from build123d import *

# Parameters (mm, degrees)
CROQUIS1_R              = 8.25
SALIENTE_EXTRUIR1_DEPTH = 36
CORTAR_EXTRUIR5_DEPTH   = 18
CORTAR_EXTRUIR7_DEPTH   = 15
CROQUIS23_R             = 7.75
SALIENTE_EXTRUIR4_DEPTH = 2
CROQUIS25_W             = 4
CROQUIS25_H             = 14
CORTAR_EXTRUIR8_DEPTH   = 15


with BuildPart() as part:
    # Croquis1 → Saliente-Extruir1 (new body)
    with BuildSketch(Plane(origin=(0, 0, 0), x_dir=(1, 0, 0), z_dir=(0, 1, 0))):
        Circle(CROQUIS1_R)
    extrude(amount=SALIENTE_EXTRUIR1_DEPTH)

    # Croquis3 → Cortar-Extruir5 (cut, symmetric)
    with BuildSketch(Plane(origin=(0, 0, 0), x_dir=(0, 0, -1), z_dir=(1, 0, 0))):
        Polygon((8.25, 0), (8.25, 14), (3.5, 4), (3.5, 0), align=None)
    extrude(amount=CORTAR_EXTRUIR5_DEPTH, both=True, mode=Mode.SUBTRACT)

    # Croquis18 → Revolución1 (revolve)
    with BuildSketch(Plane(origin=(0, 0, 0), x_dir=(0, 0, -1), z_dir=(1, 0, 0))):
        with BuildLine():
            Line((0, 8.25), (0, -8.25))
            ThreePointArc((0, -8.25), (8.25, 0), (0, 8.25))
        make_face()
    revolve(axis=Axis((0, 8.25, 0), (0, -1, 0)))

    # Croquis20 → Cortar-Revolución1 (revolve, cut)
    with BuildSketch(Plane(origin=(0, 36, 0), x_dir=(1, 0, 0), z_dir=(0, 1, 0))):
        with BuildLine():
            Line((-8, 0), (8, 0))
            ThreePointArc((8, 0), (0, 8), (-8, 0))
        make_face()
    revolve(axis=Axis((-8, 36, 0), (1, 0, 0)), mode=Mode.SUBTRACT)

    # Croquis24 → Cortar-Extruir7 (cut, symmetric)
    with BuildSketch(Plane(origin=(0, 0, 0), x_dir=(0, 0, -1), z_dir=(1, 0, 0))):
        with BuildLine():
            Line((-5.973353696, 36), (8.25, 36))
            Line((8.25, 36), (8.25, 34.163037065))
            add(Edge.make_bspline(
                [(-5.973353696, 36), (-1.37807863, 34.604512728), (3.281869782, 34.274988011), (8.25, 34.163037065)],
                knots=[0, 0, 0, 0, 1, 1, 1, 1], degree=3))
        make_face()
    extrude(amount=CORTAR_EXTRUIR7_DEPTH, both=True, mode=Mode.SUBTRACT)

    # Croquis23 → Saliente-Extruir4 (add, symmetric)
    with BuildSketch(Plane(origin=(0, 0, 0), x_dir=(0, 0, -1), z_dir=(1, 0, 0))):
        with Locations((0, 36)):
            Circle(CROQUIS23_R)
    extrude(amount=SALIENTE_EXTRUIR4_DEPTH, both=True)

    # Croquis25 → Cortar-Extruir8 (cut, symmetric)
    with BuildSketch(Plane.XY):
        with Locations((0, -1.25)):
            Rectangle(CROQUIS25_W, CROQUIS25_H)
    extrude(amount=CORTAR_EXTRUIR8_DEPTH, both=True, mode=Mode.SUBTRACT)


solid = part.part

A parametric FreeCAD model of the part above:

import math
import FreeCAD as App
import Part
import Sketcher
from FreeCAD import Vector


def add_polygon(sketch, points):
    """Adds a closed chain of lines whose ends are joined by coincident constraints."""
    first, n = sketch.GeometryCount, len(points)
    for a, b in zip(points, points[1:] + points[:1]):
        sketch.addGeometry(Part.LineSegment(App.Vector(*a, 0), App.Vector(*b, 0)), False)
    for i in range(n):
        sketch.addConstraint(Sketcher.Constraint("Coincident", first + i, 2, first + (i + 1) % n, 1))

doc = App.newDocument("Part")
body = doc.addObject("PartDesign::Body", "Body")

sketch1 = body.newObject("Sketcher::SketchObject", "Sketch")
sketch1.AttachmentSupport = (doc.getObject("XZ_Plane"), [""])
sketch1.MapMode = "FlatFace"
sketch1.addGeometry(Part.Circle(Vector(0, 0, 0), Vector(0, 0, 1), 8), False)
sketch1.addConstraint(Sketcher.Constraint("Coincident", 0, 3, -1, 1))
sketch1.addConstraint(Sketcher.Constraint("Diameter", 0, 16.5))
pad1 = body.newObject("PartDesign::Pad", "Pad")
pad1.Profile = sketch1
pad1.Length = 36
pad1.Reversed = True

sketch2 = body.newObject("Sketcher::SketchObject", "Sketch001")
sketch2.AttachmentSupport = (doc.getObject("YZ_Plane"), [""])
sketch2.MapMode = "FlatFace"
add_polygon(sketch2, [(0, -8.2), (14, -8.2), (4, -3.5), (0, -3.5)])
sketch2.addConstraint(Sketcher.Constraint("Horizontal", 0))
sketch2.addConstraint(Sketcher.Constraint("Horizontal", 2))
sketch2.addConstraint(Sketcher.Constraint("Vertical", 3))
sketch2.addConstraint(Sketcher.Constraint("PointOnObject", 2, 2, -2))
sketch2.addConstraint(Sketcher.Constraint("DistanceX", 0, 1, 0, 2, 14.0))
sketch2.addConstraint(Sketcher.Constraint("DistanceX", 2, 2, 2, 1, 4.0))
sketch2.addConstraint(Sketcher.Constraint("DistanceY", 3, 2, 3, 1, 4.75))
sketch2.addConstraint(Sketcher.Constraint("DistanceY", 1, 2, -1, 1, 3.5))
pocket1 = body.newObject("PartDesign::Pocket", "Pocket")
pocket1.Profile = sketch2
pocket1.Length = 36
pocket1.Midplane = True

sketch3 = body.newObject("Sketcher::SketchObject", "Sketch002")
sketch3.AttachmentSupport = (doc.getObject("YZ_Plane"), [""])
sketch3.MapMode = "FlatFace"
sketch3.addGeometry(Part.LineSegment(Vector(8, 0, 0), Vector(-8, 0, 0)), False)
sketch3.addGeometry(Part.ArcOfCircle(Part.Circle(Vector(0, 0, 0), Vector(0, 0, 1), 8), math.radians(180), math.radians(360)), False)
sketch3.addConstraint(Sketcher.Constraint("Coincident", 0, 1, 1, 2))
sketch3.addConstraint(Sketcher.Constraint("Coincident", 1, 1, 0, 2))
sketch3.addConstraint(Sketcher.Constraint("Horizontal", 0))
sketch3.addConstraint(Sketcher.Constraint("Coincident", 1, 3, -1, 1))
sketch3.addConstraint(Sketcher.Constraint("PointOnObject", 0, 1, -1))
sketch3.addConstraint(Sketcher.Constraint("Radius", 1, 8.25))
revolution = body.newObject("PartDesign::Revolution", "Revolution")
revolution.Profile = sketch3
revolution.ReferenceAxis = (sketch3, ["H_Axis"])
revolution.Angle = 360

sketch4 = body.newObject("Sketcher::SketchObject", "Sketch003")
sketch4.AttachmentSupport = (doc.getObject("XZ_Plane"), [""])
sketch4.MapMode = "FlatFace"
sketch4.AttachmentOffset = App.Placement(Vector(0, 0, -36), App.Rotation())
sketch4.addGeometry(Part.LineSegment(Vector(-8, 0, 0), Vector(8, 0, 0)), False)
sketch4.addGeometry(Part.ArcOfCircle(Part.Circle(Vector(0, 0, 0), Vector(0, 0, 1), 8), math.radians(180), math.radians(360)), False)
sketch4.addConstraint(Sketcher.Constraint("Coincident", 0, 1, 1, 1))
sketch4.addConstraint(Sketcher.Constraint("Coincident", 1, 2, 0, 2))
sketch4.addConstraint(Sketcher.Constraint("Horizontal", 0))
sketch4.addConstraint(Sketcher.Constraint("Coincident", 1, 3, -1, 1))
sketch4.addConstraint(Sketcher.Constraint("PointOnObject", 0, 1, -1))
sketch4.addConstraint(Sketcher.Constraint("Radius", 1, 8.0))
groove = body.newObject("PartDesign::Groove", "Groove")
groove.Profile = sketch4
groove.ReferenceAxis = (sketch4, ["H_Axis"])
groove.Angle = 360

sketch5 = body.newObject("Sketcher::SketchObject", "Sketch004")
sketch5.AttachmentSupport = (doc.getObject("YZ_Plane"), [""])
sketch5.MapMode = "FlatFace"
sketch5.addGeometry(Part.LineSegment(Vector(36, -8.25, 0), Vector(36, 5.973354, 0)), False)
sketch5.addGeometry(Part.BSplineCurve([Vector(36, 5.973354, 0), Vector(34.604513, 1.378079, 0), Vector(34.274988, -3.28187, 0), Vector(34.163037, -8.25, 0)], [4, 4], [0, 1], False, 3, [1, 1, 1, 1], False), False)
sketch5.addGeometry(Part.LineSegment(Vector(34.163037, -8.25, 0), Vector(36, -8.25, 0)), False)
sketch5.addConstraint(Sketcher.Constraint("Block", 1))
sketch5.addConstraint(Sketcher.Constraint("Coincident", 0, 2, 1, 1))
sketch5.addConstraint(Sketcher.Constraint("Coincident", 1, 2, 2, 1))
sketch5.addConstraint(Sketcher.Constraint("Coincident", 2, 2, 0, 1))
sketch5.addConstraint(Sketcher.Constraint("Vertical", 0))
sketch5.addConstraint(Sketcher.Constraint("Horizontal", 2))
pocket2 = body.newObject("PartDesign::Pocket", "Pocket001")
pocket2.Profile = sketch5
pocket2.Length = 30
pocket2.Midplane = True

sketch6 = body.newObject("Sketcher::SketchObject", "Sketch005")
sketch6.AttachmentSupport = (doc.getObject("YZ_Plane"), [""])
sketch6.MapMode = "FlatFace"
sketch6.addGeometry(Part.Circle(Vector(36, 0, 0), Vector(0, 0, 1), 8), False)
sketch6.addConstraint(Sketcher.Constraint("PointOnObject", 0, 3, -1))
sketch6.addConstraint(Sketcher.Constraint("Diameter", 0, 15.5))
sketch6.addConstraint(Sketcher.Constraint("DistanceX", -1, 1, 0, 3, 36.0))
pad2 = body.newObject("PartDesign::Pad", "Pad001")
pad2.Profile = sketch6
pad2.Length = 4
pad2.Midplane = True

sketch7 = body.newObject("Sketcher::SketchObject", "Sketch006")
sketch7.AttachmentSupport = (doc.getObject("XY_Plane"), [""])
sketch7.MapMode = "FlatFace"
add_polygon(sketch7, [(-2, 5.8), (-2, -8.2), (2, -8.2), (2, 5.8)])
sketch7.addConstraint(Sketcher.Constraint("Vertical", 0))
sketch7.addConstraint(Sketcher.Constraint("Horizontal", 1))
sketch7.addConstraint(Sketcher.Constraint("Vertical", 2))
sketch7.addConstraint(Sketcher.Constraint("Horizontal", 3))
sketch7.addConstraint(Sketcher.Constraint("DistanceX", 1, 1, 1, 2, 4.0))
sketch7.addConstraint(Sketcher.Constraint("DistanceY", 0, 2, 0, 1, 14.0))
sketch7.addConstraint(Sketcher.Constraint("DistanceX", 0, 2, -1, 1, 2.0))
sketch7.addConstraint(Sketcher.Constraint("DistanceY", 0, 2, -1, 1, 8.25))
pocket3 = body.newObject("PartDesign::Pocket", "Pocket002")
pocket3.Profile = sketch7
pocket3.Length = 30
pocket3.Midplane = True

doc.recompute()
